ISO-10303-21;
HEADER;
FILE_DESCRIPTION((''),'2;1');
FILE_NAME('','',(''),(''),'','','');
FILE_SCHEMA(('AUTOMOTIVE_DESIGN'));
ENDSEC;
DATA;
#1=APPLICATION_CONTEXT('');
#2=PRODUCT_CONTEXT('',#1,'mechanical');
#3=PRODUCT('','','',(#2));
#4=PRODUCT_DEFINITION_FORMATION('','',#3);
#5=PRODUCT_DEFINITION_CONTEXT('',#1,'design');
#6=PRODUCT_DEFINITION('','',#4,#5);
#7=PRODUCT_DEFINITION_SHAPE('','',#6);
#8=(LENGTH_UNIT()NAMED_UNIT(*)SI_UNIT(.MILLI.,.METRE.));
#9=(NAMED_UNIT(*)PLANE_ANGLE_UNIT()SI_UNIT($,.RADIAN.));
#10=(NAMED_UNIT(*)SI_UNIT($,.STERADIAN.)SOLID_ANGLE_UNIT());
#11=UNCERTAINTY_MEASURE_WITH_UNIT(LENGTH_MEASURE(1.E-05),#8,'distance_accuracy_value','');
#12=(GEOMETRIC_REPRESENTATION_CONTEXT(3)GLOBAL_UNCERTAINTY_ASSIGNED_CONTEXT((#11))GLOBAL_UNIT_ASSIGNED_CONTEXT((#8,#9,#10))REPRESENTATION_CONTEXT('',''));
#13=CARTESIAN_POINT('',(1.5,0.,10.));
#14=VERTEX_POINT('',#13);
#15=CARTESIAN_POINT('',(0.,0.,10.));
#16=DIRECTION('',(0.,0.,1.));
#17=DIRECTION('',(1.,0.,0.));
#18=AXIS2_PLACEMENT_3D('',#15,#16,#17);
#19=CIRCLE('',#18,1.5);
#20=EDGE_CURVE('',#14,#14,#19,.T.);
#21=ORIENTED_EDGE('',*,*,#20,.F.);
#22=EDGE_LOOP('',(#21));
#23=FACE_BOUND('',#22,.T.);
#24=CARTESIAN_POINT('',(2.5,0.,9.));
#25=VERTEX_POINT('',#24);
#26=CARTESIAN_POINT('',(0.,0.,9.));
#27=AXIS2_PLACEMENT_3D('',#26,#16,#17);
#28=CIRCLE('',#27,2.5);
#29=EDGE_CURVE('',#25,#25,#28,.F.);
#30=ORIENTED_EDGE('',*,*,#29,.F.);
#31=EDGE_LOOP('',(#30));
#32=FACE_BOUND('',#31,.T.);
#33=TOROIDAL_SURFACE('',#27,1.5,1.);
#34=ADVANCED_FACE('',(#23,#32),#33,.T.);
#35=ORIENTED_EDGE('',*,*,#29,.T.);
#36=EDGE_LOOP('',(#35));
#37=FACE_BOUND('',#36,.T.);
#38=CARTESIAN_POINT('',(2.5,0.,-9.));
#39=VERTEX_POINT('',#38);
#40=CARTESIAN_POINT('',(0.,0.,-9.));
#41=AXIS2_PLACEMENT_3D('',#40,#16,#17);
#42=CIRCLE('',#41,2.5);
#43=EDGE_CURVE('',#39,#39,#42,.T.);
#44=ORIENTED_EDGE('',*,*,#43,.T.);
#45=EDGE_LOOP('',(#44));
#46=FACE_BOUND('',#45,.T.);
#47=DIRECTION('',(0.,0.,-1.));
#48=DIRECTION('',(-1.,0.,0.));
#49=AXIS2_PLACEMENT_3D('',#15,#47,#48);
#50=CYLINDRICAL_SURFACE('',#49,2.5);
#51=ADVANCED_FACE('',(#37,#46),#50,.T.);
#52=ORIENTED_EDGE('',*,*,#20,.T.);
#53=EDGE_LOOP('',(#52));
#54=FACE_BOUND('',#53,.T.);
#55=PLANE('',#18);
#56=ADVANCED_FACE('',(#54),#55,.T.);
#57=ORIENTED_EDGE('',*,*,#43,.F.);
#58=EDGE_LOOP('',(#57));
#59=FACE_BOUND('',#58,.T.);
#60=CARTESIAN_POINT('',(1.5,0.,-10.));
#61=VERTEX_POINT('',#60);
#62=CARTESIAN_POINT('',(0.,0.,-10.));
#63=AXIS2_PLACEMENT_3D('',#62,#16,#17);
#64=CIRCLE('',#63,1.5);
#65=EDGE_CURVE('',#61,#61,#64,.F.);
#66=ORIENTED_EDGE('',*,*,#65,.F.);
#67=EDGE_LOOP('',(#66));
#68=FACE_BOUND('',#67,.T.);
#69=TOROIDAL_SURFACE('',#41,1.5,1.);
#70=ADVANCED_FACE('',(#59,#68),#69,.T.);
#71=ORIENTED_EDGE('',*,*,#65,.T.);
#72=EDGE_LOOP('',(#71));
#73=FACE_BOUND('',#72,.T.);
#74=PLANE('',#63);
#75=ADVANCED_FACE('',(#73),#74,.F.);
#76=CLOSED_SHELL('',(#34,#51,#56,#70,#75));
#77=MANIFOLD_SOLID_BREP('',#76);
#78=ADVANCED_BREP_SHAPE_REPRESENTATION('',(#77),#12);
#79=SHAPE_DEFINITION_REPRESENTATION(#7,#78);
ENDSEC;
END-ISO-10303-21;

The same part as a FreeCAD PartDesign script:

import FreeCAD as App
import Part
import Sketcher

V = App.Vector
Q = App.Units.Quantity


def edges_at(feature, points):
    """Names of the edges that pass closest to the given points."""
    edges = feature.Shape.Edges
    near = lambda p: min(range(len(edges)), key=lambda i: edges[i].distToShape(Part.Vertex(*p))[0])
    return sorted({f"Edge{near(p) + 1}" for p in points})

doc = App.newDocument("Part")
body = doc.addObject("PartDesign::Body", "Body")

# Sketch on XY plane
sketch1 = body.newObject("Sketcher::SketchObject", "Sketch")
sketch1.AttachmentSupport = (doc.getObject("XY_Plane"), [""])
sketch1.MapMode = "FlatFace"
sketch1.addGeometry(Part.Circle(V(0, 0, 0), V(0, 0, 1), 2.5), False)
sketch1.addConstraint(Sketcher.Constraint("Coincident", 0, 3, -1, 1))
sketch1.addConstraint(Sketcher.Constraint("Diameter", 0, Q("5 mm")))
pad1 = body.newObject("PartDesign::Pad", "Pad")
pad1.Profile = sketch1
pad1.Length = 20
pad1.Midplane = True
doc.recompute()

fillet = body.newObject("PartDesign::Fillet", "Fillet")
fillet.Base = (pad1, edges_at(pad1, [(-2.5, 0, -10), (-2.5, 0, 10)]))
fillet.Radius = 1

doc.recompute()
